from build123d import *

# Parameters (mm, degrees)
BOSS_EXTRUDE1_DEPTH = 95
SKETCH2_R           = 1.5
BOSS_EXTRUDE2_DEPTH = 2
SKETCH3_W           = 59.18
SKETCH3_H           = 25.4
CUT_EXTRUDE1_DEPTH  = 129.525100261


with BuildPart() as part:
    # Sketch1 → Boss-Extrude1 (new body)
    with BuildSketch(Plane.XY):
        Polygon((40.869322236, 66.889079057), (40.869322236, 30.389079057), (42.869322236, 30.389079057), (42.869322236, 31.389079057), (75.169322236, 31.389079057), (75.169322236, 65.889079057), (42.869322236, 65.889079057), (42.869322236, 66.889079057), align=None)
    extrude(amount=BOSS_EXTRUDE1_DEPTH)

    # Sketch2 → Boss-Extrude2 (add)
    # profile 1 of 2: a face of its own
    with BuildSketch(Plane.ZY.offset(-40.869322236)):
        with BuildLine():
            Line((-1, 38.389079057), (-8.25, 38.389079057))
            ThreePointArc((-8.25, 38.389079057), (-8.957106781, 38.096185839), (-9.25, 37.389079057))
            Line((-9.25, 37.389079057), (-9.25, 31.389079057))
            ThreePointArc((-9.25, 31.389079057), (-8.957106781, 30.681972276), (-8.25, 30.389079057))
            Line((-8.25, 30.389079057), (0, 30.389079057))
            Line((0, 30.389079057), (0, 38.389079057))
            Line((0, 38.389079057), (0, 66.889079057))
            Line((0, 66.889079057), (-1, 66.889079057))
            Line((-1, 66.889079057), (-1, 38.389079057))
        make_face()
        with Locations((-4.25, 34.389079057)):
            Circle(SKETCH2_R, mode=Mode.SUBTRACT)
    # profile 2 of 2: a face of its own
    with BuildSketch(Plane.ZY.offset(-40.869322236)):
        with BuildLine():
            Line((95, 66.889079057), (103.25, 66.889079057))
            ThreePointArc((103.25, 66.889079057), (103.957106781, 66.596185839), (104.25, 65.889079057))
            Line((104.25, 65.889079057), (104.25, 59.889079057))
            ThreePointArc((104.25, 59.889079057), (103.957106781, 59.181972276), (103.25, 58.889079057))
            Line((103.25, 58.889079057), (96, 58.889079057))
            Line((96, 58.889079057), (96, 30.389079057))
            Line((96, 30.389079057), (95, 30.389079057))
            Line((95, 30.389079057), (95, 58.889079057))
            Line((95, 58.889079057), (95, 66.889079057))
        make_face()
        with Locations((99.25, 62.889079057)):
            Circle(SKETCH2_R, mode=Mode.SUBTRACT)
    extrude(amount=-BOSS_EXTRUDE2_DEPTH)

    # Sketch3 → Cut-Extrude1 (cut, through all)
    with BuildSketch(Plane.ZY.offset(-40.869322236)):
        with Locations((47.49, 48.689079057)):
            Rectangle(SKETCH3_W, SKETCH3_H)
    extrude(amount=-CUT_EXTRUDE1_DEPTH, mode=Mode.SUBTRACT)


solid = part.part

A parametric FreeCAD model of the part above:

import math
import FreeCAD as App
import Part
import Sketcher
from FreeCAD import Vector


def add_polygon(sketch, points):
    """Adds a closed chain of lines whose ends are joined by coincident constraints."""
    first, n = sketch.GeometryCount, len(points)
    for a, b in zip(points, points[1:] + points[:1]):
        sketch.addGeometry(Part.LineSegment(App.Vector(*a, 0), App.Vector(*b, 0)), False)
    for i in range(n):
        sketch.addConstraint(Sketcher.Constraint("Coincident", first + i, 2, first + (i + 1) % n, 1))

doc = App.newDocument("Part")
body = doc.addObject("PartDesign::Body", "Body")

sketch1 = body.newObject("Sketcher::SketchObject", "Sketch")
sketch1.AttachmentSupport = (doc.getObject("XY_Plane"), [""])
sketch1.MapMode = "FlatFace"
add_polygon(sketch1, [(40.869322, 66.889079), (40.869322, 30.389079), (42.869322, 30.389079), (42.869322, 31.389079), (75.169322, 31.389079), (75.169322, 65.889079), (42.869322, 65.889079), (42.869322, 66.889079)])
sketch1.addConstraint(Sketcher.Constraint("Vertical", 0))
sketch1.addConstraint(Sketcher.Constraint("Horizontal", 1))
sketch1.addConstraint(Sketcher.Constraint("Vertical", 2))
sketch1.addConstraint(Sketcher.Constraint("Horizontal", 3))
sketch1.addConstraint(Sketcher.Constraint("Vertical", 4))
sketch1.addConstraint(Sketcher.Constraint("Horizontal", 5))
sketch1.addConstraint(Sketcher.Constraint("Vertical", 6))
sketch1.addConstraint(Sketcher.Constraint("Horizontal", 7))
sketch1.addConstraint(Sketcher.Constraint("Vertical", 2, 2, 5, 2))
sketch1.addConstraint(Sketcher.Constraint("Equal", 2, 6))
sketch1.addConstraint(Sketcher.Constraint("DistanceX", 1, 1, 1, 2, 2.0))
sketch1.addConstraint(Sketcher.Constraint("DistanceY", 2, 1, 2, 2, 1.0))
sketch1.addConstraint(Sketcher.Constraint("DistanceX", 3, 1, 3, 2, 32.3))
sketch1.addConstraint(Sketcher.Constraint("DistanceY", 0, 2, 0, 1, 36.5))
sketch1.addConstraint(Sketcher.Constraint("DistanceY", -1, 1, 0, 2, 30.389079))
sketch1.addConstraint(Sketcher.Constraint("DistanceX", -1, 1, 0, 2, 40.869322))
pad1 = body.newObject("PartDesign::Pad", "Pad")
pad1.Profile = sketch1
pad1.Length = 95

sketch2 = body.newObject("Sketcher::SketchObject", "Sketch001")
sketch2.AttachmentSupport = (doc.getObject("YZ_Plane"), [""])
sketch2.MapMode = "FlatFace"
sketch2.AttachmentOffset = App.Placement(Vector(0, 0, 40.869322), App.Rotation())
sketch2.addGeometry(Part.LineSegment(Vector(38.389079, -1, 0), Vector(38.389079, -8.25, 0)), False)
sketch2.addGeometry(Part.ArcOfCircle(Part.Circle(Vector(37.389079, -8.25, 0), Vector(0, 0, 1), 1), math.radians(-90), math.radians(0)), False)
sketch2.addGeometry(Part.LineSegment(Vector(37.389079, -9.25, 0), Vector(31.389079, -9.25, 0)), False)
sketch2.addGeometry(Part.ArcOfCircle(Part.Circle(Vector(31.389079, -8.25, 0), Vector(0, 0, 1), 1), math.radians(-180), math.radians(-90)), False)
sketch2.addGeometry(Part.LineSegment(Vector(30.389079, -8.25, 0), Vector(30.389079, 0, 0)), False)
sketch2.addGeometry(Part.LineSegment(Vector(30.389079, 0, 0), Vector(66.889079, 0, 0)), False)
sketch2.addGeometry(Part.LineSegment(Vector(66.889079, 0, 0), Vector(66.889079, -1, 0)), False)
sketch2.addGeometry(Part.LineSegment(Vector(66.889079, -1, 0), Vector(38.389079, -1, 0)), False)
sketch2.addGeometry(Part.Circle(Vector(34.389079, -4.25, 0), Vector(0, 0, 1), 1.5), False)
sketch2.addGeometry(Part.LineSegment(Vector(66.889079, 103.25, 0), Vector(66.889079, 95, 0)), False)
sketch2.addGeometry(Part.LineSegment(Vector(66.889079, 95, 0), Vector(30.389079, 95, 0)), False)
sketch2.addGeometry(Part.LineSegment(Vector(30.389079, 95, 0), Vector(30.389079, 96, 0)), False)
sketch2.addGeometry(Part.LineSegment(Vector(30.389079, 96, 0), Vector(58.889079, 96, 0)), False)
sketch2.addGeometry(Part.LineSegment(Vector(58.889079, 96, 0), Vector(58.889079, 103.25, 0)), False)
sketch2.addGeometry(Part.ArcOfCircle(Part.Circle(Vector(59.889079, 103.25, 0), Vector(0, 0, 1), 1), math.radians(90), math.radians(180)), False)
sketch2.addGeometry(Part.LineSegment(Vector(59.889079, 104.25, 0), Vector(65.889079, 104.25, 0)), False)
sketch2.addGeometry(Part.ArcOfCircle(Part.Circle(Vector(65.889079, 103.25, 0), Vector(0, 0, 1), 1), math.radians(0), math.radians(90)), False)
sketch2.addGeometry(Part.Circle(Vector(62.889079, 99.25, 0), Vector(0, 0, 1), 1.5), False)
sketch2.addConstraint(Sketcher.Constraint("Tangent", 0, 2, 1, 2))
sketch2.addConstraint(Sketcher.Constraint("Tangent", 1, 1, 2, 1))
sketch2.addConstraint(Sketcher.Constraint("Tangent", 2, 2, 3, 2))
sketch2.addConstraint(Sketcher.Constraint("Tangent", 3, 1, 4, 1))
sketch2.addConstraint(Sketcher.Constraint("Coincident", 4, 2, 5, 1))
sketch2.addConstraint(Sketcher.Constraint("Coincident", 5, 2, 6, 1))
sketch2.addConstraint(Sketcher.Constraint("Coincident", 6, 2, 7, 1))
sketch2.addConstraint(Sketcher.Constraint("Coincident", 7, 2, 0, 1))
sketch2.addConstraint(Sketcher.Constraint("Coincident", 9, 2, 10, 1))
sketch2.addConstraint(Sketcher.Constraint("Coincident", 10, 2, 11, 1))
sketch2.addConstraint(Sketcher.Constraint("Coincident", 11, 2, 12, 1))
sketch2.addConstraint(Sketcher.Constraint("Coincident", 12, 2, 13, 1))
sketch2.addConstraint(Sketcher.Constraint("Tangent", 13, 2, 14, 2))
sketch2.addConstraint(Sketcher.Constraint("Tangent", 14, 1, 15, 1))
sketch2.addConstraint(Sketcher.Constraint("Tangent", 15, 2, 16, 2))
sketch2.addConstraint(Sketcher.Constraint("Tangent", 16, 1, 9, 1))
sketch2.addConstraint(Sketcher.Constraint("Vertical", 0))
sketch2.addConstraint(Sketcher.Constraint("Horizontal", 2))
sketch2.addConstraint(Sketcher.Constraint("Vertical", 4))
sketch2.addConstraint(Sketcher.Constraint("Horizontal", 5))
sketch2.addConstraint(Sketcher.Constraint("Vertical", 6))
sketch2.addConstraint(Sketcher.Constraint("Horizontal", 7))
sketch2.addConstraint(Sketcher.Constraint("Vertical", 9))
sketch2.addConstraint(Sketcher.Constraint("Horizontal", 10))
sketch2.addConstraint(Sketcher.Constraint("Vertical", 11))
sketch2.addConstraint(Sketcher.Constraint("Horizontal", 12))
sketch2.addConstraint(Sketcher.Constraint("Vertical", 13))
sketch2.addConstraint(Sketcher.Constraint("Horizontal", 15))
sketch2.addConstraint(Sketcher.Constraint("Equal", 1, 3))
sketch2.addConstraint(Sketcher.Constraint("Equal", 3, 14))
sketch2.addConstraint(Sketcher.Constraint("Equal", 14, 16))
sketch2.addConstraint(Sketcher.Constraint("Equal", 8, 17))
sketch2.addConstraint(Sketcher.Constraint("PointOnObject", 4, 2, -1))
sketch2.addConstraint(Sketcher.Constraint("Vertical", 6, 2, 9, 2))
sketch2.addConstraint(Sketcher.Constraint("Vertical", 4, 2, 10, 2))
sketch2.addConstraint(Sketcher.Constraint("Equal", 7, 12))
sketch2.addConstraint(Sketcher.Constraint("Equal", 4, 9))
sketch2.addConstraint(Sketcher.Constraint("Equal", 6, 11))
sketch2.addConstraint(Sketcher.Constraint("Diameter", 8, 3.0))
sketch2.addConstraint(Sketcher.Constraint("Radius", 1, 1.0))
sketch2.addConstraint(Sketcher.Constraint("DistanceX", 2, 2, 2, 1, 6.0))
sketch2.addConstraint(Sketcher.Constraint("DistanceY", 6, 2, 6, 1, 1.0))
sketch2.addConstraint(Sketcher.Constraint("DistanceX", 5, 1, 5, 2, 36.5))
sketch2.addConstraint(Sketcher.Constraint("DistanceY", -1, 1, 9, 2, 95.0))
sketch2.addConstraint(Sketcher.Constraint("DistanceX", 3, 3, 8, 3, 3.0))
sketch2.addConstraint(Sketcher.Constraint("DistanceY", 3, 3, 8, 3, 4.0))
sketch2.addConstraint(Sketcher.Constraint("DistanceX", 14, 3, 17, 3, 3.0))
sketch2.addConstraint(Sketcher.Constraint("DistanceY", 17, 3, 14, 3, 4.0))
sketch2.addConstraint(Sketcher.Constraint("DistanceY", 0, 2, 0, 1, 7.25))
sketch2.addConstraint(Sketcher.Constraint("DistanceX", -1, 1, 1, 3, 37.389079))
pad2 = body.newObject("PartDesign::Pad", "Pad001")
pad2.Profile = sketch2
pad2.Length = 2

sketch3 = body.newObject("Sketcher::SketchObject", "Sketch002")
sketch3.AttachmentSupport = (doc.getObject("YZ_Plane"), [""])
sketch3.MapMode = "FlatFace"
sketch3.AttachmentOffset = App.Placement(Vector(0, 0, 40.869322), App.Rotation())
add_polygon(sketch3, [(61.389079, 17.9), (35.989079, 17.9), (35.989079, 77.08), (61.389079, 77.08)])
sketch3.addConstraint(Sketcher.Constraint("Horizontal", 0))
sketch3.addConstraint(Sketcher.Constraint("Vertical", 1))
sketch3.addConstraint(Sketcher.Constraint("Horizontal", 2))
sketch3.addConstraint(Sketcher.Constraint("Vertical", 3))
sketch3.addConstraint(Sketcher.Constraint("DistanceX", 0, 2, 0, 1, 25.4))
sketch3.addConstraint(Sketcher.Constraint("DistanceY", 1, 1, 1, 2, 59.18))
sketch3.addConstraint(Sketcher.Constraint("DistanceY", -1, 1, 0, 2, 17.9))
sketch3.addConstraint(Sketcher.Constraint("DistanceX", -1, 1, 0, 2, 35.989079))
pocket1 = body.newObject("PartDesign::Pocket", "Pocket")
pocket1.Profile = sketch3
pocket1.Type = "ThroughAll"
pocket1.Reversed = True

doc.recompute()
